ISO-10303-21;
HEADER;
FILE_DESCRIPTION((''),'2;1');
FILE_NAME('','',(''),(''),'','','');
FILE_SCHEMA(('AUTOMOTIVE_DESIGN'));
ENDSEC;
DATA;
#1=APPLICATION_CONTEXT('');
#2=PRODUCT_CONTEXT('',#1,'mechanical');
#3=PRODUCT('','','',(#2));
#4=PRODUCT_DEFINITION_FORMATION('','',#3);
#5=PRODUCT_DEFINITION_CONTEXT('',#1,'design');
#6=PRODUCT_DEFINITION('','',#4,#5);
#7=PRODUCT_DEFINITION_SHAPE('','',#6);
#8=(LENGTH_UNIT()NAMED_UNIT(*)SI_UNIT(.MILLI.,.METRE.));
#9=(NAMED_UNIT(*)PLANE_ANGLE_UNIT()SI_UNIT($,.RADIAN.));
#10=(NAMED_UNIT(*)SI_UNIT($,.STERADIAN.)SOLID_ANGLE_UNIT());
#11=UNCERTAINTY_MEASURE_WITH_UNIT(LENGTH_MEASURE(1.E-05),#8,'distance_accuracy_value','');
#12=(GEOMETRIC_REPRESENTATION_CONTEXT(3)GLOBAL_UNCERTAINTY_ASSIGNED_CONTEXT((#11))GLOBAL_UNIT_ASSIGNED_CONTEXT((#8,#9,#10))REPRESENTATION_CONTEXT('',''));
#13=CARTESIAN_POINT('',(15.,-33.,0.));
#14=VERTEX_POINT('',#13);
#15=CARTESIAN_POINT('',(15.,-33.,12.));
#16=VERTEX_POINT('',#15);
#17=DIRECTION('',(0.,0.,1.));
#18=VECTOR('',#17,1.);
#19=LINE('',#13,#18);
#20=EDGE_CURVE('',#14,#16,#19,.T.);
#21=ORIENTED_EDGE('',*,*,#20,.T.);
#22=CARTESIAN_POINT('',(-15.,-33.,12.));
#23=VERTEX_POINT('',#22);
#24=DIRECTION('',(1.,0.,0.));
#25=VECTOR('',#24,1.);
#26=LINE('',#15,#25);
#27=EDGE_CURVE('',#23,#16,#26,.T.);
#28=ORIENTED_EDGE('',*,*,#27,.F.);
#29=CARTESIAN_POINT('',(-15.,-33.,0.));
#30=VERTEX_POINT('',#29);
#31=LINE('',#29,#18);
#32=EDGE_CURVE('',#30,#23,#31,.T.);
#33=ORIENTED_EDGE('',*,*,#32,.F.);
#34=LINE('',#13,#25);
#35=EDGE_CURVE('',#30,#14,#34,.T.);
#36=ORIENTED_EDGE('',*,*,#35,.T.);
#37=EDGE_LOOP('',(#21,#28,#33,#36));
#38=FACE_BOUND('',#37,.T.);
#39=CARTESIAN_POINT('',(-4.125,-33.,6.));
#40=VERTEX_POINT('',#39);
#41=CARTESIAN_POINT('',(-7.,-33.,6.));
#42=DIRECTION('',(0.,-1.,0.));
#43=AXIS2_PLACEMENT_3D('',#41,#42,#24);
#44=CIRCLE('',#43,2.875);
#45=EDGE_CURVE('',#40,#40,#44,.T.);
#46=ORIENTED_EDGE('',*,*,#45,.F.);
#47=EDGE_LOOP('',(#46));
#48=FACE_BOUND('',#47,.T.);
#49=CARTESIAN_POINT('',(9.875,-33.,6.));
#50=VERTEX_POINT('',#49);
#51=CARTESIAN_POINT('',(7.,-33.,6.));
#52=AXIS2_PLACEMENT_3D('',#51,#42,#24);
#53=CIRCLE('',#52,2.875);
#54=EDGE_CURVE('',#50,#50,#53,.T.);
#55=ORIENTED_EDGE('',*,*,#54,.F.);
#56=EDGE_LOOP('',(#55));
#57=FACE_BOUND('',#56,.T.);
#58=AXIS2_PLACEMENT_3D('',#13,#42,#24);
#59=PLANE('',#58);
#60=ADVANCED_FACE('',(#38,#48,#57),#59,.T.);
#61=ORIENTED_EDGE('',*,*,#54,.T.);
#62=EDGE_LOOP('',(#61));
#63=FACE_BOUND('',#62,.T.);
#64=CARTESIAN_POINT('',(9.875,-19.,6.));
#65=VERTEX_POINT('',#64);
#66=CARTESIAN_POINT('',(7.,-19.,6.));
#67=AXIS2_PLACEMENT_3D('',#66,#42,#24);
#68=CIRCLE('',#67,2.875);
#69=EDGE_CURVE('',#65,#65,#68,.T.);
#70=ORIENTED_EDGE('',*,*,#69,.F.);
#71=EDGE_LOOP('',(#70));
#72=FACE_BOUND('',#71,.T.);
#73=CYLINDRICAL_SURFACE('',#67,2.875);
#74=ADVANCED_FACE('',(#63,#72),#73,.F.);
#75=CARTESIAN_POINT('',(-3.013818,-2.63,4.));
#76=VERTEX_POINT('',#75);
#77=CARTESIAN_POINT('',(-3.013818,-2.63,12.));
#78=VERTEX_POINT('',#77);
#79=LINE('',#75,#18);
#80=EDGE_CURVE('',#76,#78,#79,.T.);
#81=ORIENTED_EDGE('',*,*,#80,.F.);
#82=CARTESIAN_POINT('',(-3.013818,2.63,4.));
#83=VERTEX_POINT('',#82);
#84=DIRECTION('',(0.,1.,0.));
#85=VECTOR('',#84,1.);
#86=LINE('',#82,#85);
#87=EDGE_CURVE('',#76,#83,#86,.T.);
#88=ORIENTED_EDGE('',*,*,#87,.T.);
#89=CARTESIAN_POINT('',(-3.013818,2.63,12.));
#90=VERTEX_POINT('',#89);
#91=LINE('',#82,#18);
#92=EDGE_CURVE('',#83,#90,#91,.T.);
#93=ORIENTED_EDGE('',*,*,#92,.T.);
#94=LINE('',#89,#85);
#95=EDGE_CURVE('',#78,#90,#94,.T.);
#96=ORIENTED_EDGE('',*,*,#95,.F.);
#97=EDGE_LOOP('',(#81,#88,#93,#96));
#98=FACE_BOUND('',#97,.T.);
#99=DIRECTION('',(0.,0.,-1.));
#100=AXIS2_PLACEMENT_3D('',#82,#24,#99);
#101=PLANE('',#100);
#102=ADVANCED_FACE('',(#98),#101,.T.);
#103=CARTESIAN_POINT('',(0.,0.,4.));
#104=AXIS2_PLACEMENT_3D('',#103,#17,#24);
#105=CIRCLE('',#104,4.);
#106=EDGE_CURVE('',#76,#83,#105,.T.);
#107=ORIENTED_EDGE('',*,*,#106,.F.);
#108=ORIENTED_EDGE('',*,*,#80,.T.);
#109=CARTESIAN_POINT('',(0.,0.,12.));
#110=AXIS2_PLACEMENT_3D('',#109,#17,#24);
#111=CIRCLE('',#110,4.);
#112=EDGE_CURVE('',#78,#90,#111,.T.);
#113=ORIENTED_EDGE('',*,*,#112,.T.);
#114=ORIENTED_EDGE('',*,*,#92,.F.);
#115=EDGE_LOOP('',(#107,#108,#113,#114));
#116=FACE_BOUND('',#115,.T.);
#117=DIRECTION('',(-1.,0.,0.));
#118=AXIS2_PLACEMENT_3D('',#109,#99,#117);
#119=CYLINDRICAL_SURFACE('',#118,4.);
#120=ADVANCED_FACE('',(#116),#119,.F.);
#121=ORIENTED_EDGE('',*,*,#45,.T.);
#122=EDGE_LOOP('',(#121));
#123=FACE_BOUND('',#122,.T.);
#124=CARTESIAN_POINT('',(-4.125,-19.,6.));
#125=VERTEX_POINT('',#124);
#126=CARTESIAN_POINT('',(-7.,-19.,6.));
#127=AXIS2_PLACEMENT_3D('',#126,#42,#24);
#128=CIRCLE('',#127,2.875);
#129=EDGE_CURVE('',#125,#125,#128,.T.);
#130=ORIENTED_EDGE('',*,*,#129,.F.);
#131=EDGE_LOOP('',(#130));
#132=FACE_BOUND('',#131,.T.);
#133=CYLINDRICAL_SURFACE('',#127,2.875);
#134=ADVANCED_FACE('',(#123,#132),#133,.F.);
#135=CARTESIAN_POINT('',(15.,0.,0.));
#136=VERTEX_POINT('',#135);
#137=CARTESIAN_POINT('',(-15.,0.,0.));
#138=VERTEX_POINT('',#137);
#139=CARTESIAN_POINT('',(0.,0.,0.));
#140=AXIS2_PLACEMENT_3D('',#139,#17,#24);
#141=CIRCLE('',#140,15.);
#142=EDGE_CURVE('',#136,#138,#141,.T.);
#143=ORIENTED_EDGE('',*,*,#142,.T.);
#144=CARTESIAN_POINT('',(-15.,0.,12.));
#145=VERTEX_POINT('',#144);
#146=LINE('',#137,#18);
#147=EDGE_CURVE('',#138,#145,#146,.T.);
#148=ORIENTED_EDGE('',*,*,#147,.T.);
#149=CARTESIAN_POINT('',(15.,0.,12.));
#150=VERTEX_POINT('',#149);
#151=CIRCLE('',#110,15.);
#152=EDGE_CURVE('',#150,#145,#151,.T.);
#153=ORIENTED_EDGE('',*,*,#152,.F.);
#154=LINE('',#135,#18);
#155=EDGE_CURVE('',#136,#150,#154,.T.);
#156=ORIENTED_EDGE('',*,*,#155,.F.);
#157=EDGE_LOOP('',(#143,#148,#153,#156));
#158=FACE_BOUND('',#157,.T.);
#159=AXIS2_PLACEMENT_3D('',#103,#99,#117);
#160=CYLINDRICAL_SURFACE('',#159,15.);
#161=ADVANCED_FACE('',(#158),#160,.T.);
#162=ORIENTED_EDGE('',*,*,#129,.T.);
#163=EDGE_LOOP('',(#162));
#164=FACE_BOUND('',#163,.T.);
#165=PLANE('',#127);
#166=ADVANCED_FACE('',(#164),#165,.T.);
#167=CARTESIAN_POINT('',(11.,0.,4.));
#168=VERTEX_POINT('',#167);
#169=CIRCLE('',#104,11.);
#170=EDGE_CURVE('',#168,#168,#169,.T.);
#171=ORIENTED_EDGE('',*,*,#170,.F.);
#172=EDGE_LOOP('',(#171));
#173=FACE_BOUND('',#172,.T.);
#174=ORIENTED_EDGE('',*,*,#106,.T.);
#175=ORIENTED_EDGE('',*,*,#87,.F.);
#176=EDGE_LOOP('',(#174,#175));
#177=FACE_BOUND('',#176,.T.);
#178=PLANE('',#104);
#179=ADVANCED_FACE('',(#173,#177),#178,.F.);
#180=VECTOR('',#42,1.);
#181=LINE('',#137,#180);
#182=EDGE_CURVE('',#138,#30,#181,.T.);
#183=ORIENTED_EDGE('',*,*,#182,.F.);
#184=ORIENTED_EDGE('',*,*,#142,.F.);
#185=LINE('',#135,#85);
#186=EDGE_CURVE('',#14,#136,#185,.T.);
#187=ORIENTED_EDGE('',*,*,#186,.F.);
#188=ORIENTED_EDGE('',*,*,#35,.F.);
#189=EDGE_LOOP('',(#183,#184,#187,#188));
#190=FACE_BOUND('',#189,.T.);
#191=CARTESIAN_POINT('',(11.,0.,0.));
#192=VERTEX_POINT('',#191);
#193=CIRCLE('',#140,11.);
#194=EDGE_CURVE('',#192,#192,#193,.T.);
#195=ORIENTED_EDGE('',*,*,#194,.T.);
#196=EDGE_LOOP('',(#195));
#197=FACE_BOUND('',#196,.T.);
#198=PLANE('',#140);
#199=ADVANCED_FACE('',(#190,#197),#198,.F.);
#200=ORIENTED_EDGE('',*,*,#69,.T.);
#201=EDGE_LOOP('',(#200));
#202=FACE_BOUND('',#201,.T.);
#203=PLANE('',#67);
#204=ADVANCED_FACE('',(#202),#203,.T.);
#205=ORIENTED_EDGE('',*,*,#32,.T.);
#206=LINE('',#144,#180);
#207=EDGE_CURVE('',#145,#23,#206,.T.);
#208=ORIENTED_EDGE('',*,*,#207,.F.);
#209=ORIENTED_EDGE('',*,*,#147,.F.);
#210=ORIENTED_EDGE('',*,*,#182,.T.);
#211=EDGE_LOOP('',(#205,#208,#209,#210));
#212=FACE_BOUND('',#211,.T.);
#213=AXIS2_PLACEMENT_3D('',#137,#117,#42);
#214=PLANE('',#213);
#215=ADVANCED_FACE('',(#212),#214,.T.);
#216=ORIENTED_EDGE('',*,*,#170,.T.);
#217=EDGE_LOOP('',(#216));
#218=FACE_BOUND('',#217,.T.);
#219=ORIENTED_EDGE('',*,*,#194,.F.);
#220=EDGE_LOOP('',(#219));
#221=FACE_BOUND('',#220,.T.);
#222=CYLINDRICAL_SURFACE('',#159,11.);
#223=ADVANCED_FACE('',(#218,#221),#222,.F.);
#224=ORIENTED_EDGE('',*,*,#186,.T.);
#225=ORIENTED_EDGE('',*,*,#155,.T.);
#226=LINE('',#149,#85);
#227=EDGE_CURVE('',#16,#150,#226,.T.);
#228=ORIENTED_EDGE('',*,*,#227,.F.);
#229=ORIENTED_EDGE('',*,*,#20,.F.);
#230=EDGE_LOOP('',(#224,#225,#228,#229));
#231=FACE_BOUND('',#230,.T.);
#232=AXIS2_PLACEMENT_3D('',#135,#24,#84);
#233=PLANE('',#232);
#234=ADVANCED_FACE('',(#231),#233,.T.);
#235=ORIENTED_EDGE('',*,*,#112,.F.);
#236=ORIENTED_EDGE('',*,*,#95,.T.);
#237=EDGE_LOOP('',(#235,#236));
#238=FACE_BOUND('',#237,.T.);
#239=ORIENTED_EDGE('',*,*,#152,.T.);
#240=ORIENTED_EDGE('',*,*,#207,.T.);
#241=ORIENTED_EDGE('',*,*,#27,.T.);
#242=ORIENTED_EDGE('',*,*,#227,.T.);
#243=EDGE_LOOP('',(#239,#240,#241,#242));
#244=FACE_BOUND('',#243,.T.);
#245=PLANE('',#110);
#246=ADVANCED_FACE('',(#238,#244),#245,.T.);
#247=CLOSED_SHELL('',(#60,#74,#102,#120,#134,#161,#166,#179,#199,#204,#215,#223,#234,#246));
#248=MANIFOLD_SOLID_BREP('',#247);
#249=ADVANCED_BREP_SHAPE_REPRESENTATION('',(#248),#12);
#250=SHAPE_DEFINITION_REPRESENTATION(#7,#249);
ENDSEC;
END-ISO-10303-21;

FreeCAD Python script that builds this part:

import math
import FreeCAD as App
import Part
import Sketcher
from FreeCAD import Vector
Q = App.Units.Quantity

doc = App.newDocument("Part")
body = doc.addObject("PartDesign::Body", "Body")

# Sketch on XY plane
sketch1 = body.newObject("Sketcher::SketchObject", "Sketch")
sketch1.AttachmentSupport = (doc.getObject("XY_Plane"), [""])
sketch1.MapMode = "FlatFace"
sketch1.addGeometry(Part.Circle(Vector(0, 0, 0), Vector(0, 0, 1), 15), False)
sketch1.addGeometry(Part.Circle(Vector(0, 0, 0), Vector(0, 0, 1), 11), False)
sketch1.addConstraint(Sketcher.Constraint("Coincident", 0, 3, -1, 1))
sketch1.addConstraint(Sketcher.Constraint("Coincident", 1, 3, -1, 1))
sketch1.addConstraint(Sketcher.Constraint("Diameter", 0, Q("30 mm")))
sketch1.addConstraint(Sketcher.Constraint("Diameter", 1, Q("22 mm")))
pad1 = body.newObject("PartDesign::Pad", "Pad")
pad1.Profile = sketch1
pad1.Length = 4

# Sketch on XY plane
sketch2 = body.newObject("Sketcher::SketchObject", "Sketch001")
sketch2.AttachmentSupport = (doc.getObject("XY_Plane"), [""])
sketch2.MapMode = "FlatFace"
sketch2.AttachmentOffset = App.Placement(Vector(0, 0, 4), App.Rotation())
sketch2.addGeometry(Part.Circle(Vector(0, 0, 0), Vector(0, 0, 1), 15), False)
sketch2.addGeometry(Part.Circle(Vector(0, 0, 0), Vector(0, 0, 1), 4), False)
sketch2.addConstraint(Sketcher.Constraint("Coincident", 0, 3, -1, 1))
sketch2.addConstraint(Sketcher.Constraint("Coincident", 1, 3, -1, 1))
sketch2.addConstraint(Sketcher.Constraint("Diameter", 0, Q("30 mm")))
sketch2.addConstraint(Sketcher.Constraint("Diameter", 1, Q("8 mm")))
pad2 = body.newObject("PartDesign::Pad", "Pad001")
pad2.Profile = sketch2
pad2.Length = 8

# Sketch on XY plane
sketch3 = body.newObject("Sketcher::SketchObject", "Sketch002")
sketch3.AttachmentSupport = (doc.getObject("XY_Plane"), [""])
sketch3.MapMode = "FlatFace"
sketch3.AttachmentOffset = App.Placement(Vector(0, 0, 12), App.Rotation())
sketch3.addGeometry(Part.LineSegment(Vector(-15, 0, 0), Vector(-15, -33, 0)), False)
sketch3.addGeometry(Part.LineSegment(Vector(-15, -33, 0), Vector(15, -33, 0)), False)
sketch3.addGeometry(Part.LineSegment(Vector(15, -33, 0), Vector(15, 0, 0)), False)
sketch3.addGeometry(Part.ArcOfCircle(Part.Circle(Vector(0, 0, 0), Vector(0, 0, 1), 15), math.radians(180), math.radians(360)), False)
sketch3.addConstraint(Sketcher.Constraint("Coincident", 0, 2, 1, 1))
sketch3.addConstraint(Sketcher.Constraint("Coincident", 1, 2, 2, 1))
sketch3.addConstraint(Sketcher.Constraint("Tangent", 2, 2, 3, 2))
sketch3.addConstraint(Sketcher.Constraint("Tangent", 3, 1, 0, 1))
sketch3.addConstraint(Sketcher.Constraint("Vertical", 0))
sketch3.addConstraint(Sketcher.Constraint("Horizontal", 1))
sketch3.addConstraint(Sketcher.Constraint("Vertical", 2))
sketch3.addConstraint(Sketcher.Constraint("Coincident", 3, 3, -1, 1))
sketch3.addConstraint(Sketcher.Constraint("Radius", 3, Q("15 mm")))
sketch3.addConstraint(Sketcher.Constraint("DistanceY", 0, 2, 0, 1, Q("33 mm")))
pad3 = body.newObject("PartDesign::Pad", "Pad002")
pad3.Profile = sketch3
pad3.Length = 12
pad3.Reversed = True

# Sketch on XY plane
sketch4 = body.newObject("Sketcher::SketchObject", "Sketch003")
sketch4.AttachmentSupport = (doc.getObject("XY_Plane"), [""])
sketch4.MapMode = "FlatFace"
sketch4.AttachmentOffset = App.Placement(Vector(0, 0, 12), App.Rotation())
sketch4.addGeometry(Part.LineSegment(Vector(-3, -2.6, 0), Vector(-3, 2.6, 0)), False)
sketch4.addGeometry(Part.ArcOfCircle(Part.Circle(Vector(0, 0, 0), Vector(0, 0, 1), 4), math.radians(139), math.radians(221)), False)
sketch4.addConstraint(Sketcher.Constraint("Coincident", 0, 1, 1, 2))
sketch4.addConstraint(Sketcher.Constraint("Coincident", 1, 1, 0, 2))
sketch4.addConstraint(Sketcher.Constraint("Vertical", 0))
sketch4.addConstraint(Sketcher.Constraint("Coincident", 1, 3, -1, 1))
sketch4.addConstraint(Sketcher.Constraint("Radius", 1, Q("4 mm")))
sketch4.addConstraint(Sketcher.Constraint("DistanceY", 0, 1, 0, 2, Q("5.26 mm")))
pad4 = body.newObject("PartDesign::Pad", "Pad003")
pad4.Profile = sketch4
pad4.Length = 8
pad4.Reversed = True

# Sketch on XZ plane
sketch5 = body.newObject("Sketcher::SketchObject", "Sketch004")
sketch5.AttachmentSupport = (doc.getObject("XZ_Plane"), [""])
sketch5.MapMode = "FlatFace"
sketch5.AttachmentOffset = App.Placement(Vector(0, 0, 33), App.Rotation())
sketch5.addGeometry(Part.Circle(Vector(-7, 6, 0), Vector(0, 0, 1), 2.9), False)
sketch5.addGeometry(Part.Circle(Vector(7, 6, 0), Vector(0, 0, 1), 2.9), False)
sketch5.addConstraint(Sketcher.Constraint("Equal", 0, 1))
sketch5.addConstraint(Sketcher.Constraint("Symmetric", 0, 3, 1, 3, -2))
sketch5.addConstraint(Sketcher.Constraint("Diameter", 0, Q("5.75 mm")))
sketch5.addConstraint(Sketcher.Constraint("DistanceX", 0, 3, -1, 1, Q("7 mm")))
sketch5.addConstraint(Sketcher.Constraint("DistanceY", -1, 1, 0, 3, Q("6 mm")))
pocket1 = body.newObject("PartDesign::Pocket", "Pocket")
pocket1.Profile = sketch5
pocket1.Length = 14

doc.recompute()
